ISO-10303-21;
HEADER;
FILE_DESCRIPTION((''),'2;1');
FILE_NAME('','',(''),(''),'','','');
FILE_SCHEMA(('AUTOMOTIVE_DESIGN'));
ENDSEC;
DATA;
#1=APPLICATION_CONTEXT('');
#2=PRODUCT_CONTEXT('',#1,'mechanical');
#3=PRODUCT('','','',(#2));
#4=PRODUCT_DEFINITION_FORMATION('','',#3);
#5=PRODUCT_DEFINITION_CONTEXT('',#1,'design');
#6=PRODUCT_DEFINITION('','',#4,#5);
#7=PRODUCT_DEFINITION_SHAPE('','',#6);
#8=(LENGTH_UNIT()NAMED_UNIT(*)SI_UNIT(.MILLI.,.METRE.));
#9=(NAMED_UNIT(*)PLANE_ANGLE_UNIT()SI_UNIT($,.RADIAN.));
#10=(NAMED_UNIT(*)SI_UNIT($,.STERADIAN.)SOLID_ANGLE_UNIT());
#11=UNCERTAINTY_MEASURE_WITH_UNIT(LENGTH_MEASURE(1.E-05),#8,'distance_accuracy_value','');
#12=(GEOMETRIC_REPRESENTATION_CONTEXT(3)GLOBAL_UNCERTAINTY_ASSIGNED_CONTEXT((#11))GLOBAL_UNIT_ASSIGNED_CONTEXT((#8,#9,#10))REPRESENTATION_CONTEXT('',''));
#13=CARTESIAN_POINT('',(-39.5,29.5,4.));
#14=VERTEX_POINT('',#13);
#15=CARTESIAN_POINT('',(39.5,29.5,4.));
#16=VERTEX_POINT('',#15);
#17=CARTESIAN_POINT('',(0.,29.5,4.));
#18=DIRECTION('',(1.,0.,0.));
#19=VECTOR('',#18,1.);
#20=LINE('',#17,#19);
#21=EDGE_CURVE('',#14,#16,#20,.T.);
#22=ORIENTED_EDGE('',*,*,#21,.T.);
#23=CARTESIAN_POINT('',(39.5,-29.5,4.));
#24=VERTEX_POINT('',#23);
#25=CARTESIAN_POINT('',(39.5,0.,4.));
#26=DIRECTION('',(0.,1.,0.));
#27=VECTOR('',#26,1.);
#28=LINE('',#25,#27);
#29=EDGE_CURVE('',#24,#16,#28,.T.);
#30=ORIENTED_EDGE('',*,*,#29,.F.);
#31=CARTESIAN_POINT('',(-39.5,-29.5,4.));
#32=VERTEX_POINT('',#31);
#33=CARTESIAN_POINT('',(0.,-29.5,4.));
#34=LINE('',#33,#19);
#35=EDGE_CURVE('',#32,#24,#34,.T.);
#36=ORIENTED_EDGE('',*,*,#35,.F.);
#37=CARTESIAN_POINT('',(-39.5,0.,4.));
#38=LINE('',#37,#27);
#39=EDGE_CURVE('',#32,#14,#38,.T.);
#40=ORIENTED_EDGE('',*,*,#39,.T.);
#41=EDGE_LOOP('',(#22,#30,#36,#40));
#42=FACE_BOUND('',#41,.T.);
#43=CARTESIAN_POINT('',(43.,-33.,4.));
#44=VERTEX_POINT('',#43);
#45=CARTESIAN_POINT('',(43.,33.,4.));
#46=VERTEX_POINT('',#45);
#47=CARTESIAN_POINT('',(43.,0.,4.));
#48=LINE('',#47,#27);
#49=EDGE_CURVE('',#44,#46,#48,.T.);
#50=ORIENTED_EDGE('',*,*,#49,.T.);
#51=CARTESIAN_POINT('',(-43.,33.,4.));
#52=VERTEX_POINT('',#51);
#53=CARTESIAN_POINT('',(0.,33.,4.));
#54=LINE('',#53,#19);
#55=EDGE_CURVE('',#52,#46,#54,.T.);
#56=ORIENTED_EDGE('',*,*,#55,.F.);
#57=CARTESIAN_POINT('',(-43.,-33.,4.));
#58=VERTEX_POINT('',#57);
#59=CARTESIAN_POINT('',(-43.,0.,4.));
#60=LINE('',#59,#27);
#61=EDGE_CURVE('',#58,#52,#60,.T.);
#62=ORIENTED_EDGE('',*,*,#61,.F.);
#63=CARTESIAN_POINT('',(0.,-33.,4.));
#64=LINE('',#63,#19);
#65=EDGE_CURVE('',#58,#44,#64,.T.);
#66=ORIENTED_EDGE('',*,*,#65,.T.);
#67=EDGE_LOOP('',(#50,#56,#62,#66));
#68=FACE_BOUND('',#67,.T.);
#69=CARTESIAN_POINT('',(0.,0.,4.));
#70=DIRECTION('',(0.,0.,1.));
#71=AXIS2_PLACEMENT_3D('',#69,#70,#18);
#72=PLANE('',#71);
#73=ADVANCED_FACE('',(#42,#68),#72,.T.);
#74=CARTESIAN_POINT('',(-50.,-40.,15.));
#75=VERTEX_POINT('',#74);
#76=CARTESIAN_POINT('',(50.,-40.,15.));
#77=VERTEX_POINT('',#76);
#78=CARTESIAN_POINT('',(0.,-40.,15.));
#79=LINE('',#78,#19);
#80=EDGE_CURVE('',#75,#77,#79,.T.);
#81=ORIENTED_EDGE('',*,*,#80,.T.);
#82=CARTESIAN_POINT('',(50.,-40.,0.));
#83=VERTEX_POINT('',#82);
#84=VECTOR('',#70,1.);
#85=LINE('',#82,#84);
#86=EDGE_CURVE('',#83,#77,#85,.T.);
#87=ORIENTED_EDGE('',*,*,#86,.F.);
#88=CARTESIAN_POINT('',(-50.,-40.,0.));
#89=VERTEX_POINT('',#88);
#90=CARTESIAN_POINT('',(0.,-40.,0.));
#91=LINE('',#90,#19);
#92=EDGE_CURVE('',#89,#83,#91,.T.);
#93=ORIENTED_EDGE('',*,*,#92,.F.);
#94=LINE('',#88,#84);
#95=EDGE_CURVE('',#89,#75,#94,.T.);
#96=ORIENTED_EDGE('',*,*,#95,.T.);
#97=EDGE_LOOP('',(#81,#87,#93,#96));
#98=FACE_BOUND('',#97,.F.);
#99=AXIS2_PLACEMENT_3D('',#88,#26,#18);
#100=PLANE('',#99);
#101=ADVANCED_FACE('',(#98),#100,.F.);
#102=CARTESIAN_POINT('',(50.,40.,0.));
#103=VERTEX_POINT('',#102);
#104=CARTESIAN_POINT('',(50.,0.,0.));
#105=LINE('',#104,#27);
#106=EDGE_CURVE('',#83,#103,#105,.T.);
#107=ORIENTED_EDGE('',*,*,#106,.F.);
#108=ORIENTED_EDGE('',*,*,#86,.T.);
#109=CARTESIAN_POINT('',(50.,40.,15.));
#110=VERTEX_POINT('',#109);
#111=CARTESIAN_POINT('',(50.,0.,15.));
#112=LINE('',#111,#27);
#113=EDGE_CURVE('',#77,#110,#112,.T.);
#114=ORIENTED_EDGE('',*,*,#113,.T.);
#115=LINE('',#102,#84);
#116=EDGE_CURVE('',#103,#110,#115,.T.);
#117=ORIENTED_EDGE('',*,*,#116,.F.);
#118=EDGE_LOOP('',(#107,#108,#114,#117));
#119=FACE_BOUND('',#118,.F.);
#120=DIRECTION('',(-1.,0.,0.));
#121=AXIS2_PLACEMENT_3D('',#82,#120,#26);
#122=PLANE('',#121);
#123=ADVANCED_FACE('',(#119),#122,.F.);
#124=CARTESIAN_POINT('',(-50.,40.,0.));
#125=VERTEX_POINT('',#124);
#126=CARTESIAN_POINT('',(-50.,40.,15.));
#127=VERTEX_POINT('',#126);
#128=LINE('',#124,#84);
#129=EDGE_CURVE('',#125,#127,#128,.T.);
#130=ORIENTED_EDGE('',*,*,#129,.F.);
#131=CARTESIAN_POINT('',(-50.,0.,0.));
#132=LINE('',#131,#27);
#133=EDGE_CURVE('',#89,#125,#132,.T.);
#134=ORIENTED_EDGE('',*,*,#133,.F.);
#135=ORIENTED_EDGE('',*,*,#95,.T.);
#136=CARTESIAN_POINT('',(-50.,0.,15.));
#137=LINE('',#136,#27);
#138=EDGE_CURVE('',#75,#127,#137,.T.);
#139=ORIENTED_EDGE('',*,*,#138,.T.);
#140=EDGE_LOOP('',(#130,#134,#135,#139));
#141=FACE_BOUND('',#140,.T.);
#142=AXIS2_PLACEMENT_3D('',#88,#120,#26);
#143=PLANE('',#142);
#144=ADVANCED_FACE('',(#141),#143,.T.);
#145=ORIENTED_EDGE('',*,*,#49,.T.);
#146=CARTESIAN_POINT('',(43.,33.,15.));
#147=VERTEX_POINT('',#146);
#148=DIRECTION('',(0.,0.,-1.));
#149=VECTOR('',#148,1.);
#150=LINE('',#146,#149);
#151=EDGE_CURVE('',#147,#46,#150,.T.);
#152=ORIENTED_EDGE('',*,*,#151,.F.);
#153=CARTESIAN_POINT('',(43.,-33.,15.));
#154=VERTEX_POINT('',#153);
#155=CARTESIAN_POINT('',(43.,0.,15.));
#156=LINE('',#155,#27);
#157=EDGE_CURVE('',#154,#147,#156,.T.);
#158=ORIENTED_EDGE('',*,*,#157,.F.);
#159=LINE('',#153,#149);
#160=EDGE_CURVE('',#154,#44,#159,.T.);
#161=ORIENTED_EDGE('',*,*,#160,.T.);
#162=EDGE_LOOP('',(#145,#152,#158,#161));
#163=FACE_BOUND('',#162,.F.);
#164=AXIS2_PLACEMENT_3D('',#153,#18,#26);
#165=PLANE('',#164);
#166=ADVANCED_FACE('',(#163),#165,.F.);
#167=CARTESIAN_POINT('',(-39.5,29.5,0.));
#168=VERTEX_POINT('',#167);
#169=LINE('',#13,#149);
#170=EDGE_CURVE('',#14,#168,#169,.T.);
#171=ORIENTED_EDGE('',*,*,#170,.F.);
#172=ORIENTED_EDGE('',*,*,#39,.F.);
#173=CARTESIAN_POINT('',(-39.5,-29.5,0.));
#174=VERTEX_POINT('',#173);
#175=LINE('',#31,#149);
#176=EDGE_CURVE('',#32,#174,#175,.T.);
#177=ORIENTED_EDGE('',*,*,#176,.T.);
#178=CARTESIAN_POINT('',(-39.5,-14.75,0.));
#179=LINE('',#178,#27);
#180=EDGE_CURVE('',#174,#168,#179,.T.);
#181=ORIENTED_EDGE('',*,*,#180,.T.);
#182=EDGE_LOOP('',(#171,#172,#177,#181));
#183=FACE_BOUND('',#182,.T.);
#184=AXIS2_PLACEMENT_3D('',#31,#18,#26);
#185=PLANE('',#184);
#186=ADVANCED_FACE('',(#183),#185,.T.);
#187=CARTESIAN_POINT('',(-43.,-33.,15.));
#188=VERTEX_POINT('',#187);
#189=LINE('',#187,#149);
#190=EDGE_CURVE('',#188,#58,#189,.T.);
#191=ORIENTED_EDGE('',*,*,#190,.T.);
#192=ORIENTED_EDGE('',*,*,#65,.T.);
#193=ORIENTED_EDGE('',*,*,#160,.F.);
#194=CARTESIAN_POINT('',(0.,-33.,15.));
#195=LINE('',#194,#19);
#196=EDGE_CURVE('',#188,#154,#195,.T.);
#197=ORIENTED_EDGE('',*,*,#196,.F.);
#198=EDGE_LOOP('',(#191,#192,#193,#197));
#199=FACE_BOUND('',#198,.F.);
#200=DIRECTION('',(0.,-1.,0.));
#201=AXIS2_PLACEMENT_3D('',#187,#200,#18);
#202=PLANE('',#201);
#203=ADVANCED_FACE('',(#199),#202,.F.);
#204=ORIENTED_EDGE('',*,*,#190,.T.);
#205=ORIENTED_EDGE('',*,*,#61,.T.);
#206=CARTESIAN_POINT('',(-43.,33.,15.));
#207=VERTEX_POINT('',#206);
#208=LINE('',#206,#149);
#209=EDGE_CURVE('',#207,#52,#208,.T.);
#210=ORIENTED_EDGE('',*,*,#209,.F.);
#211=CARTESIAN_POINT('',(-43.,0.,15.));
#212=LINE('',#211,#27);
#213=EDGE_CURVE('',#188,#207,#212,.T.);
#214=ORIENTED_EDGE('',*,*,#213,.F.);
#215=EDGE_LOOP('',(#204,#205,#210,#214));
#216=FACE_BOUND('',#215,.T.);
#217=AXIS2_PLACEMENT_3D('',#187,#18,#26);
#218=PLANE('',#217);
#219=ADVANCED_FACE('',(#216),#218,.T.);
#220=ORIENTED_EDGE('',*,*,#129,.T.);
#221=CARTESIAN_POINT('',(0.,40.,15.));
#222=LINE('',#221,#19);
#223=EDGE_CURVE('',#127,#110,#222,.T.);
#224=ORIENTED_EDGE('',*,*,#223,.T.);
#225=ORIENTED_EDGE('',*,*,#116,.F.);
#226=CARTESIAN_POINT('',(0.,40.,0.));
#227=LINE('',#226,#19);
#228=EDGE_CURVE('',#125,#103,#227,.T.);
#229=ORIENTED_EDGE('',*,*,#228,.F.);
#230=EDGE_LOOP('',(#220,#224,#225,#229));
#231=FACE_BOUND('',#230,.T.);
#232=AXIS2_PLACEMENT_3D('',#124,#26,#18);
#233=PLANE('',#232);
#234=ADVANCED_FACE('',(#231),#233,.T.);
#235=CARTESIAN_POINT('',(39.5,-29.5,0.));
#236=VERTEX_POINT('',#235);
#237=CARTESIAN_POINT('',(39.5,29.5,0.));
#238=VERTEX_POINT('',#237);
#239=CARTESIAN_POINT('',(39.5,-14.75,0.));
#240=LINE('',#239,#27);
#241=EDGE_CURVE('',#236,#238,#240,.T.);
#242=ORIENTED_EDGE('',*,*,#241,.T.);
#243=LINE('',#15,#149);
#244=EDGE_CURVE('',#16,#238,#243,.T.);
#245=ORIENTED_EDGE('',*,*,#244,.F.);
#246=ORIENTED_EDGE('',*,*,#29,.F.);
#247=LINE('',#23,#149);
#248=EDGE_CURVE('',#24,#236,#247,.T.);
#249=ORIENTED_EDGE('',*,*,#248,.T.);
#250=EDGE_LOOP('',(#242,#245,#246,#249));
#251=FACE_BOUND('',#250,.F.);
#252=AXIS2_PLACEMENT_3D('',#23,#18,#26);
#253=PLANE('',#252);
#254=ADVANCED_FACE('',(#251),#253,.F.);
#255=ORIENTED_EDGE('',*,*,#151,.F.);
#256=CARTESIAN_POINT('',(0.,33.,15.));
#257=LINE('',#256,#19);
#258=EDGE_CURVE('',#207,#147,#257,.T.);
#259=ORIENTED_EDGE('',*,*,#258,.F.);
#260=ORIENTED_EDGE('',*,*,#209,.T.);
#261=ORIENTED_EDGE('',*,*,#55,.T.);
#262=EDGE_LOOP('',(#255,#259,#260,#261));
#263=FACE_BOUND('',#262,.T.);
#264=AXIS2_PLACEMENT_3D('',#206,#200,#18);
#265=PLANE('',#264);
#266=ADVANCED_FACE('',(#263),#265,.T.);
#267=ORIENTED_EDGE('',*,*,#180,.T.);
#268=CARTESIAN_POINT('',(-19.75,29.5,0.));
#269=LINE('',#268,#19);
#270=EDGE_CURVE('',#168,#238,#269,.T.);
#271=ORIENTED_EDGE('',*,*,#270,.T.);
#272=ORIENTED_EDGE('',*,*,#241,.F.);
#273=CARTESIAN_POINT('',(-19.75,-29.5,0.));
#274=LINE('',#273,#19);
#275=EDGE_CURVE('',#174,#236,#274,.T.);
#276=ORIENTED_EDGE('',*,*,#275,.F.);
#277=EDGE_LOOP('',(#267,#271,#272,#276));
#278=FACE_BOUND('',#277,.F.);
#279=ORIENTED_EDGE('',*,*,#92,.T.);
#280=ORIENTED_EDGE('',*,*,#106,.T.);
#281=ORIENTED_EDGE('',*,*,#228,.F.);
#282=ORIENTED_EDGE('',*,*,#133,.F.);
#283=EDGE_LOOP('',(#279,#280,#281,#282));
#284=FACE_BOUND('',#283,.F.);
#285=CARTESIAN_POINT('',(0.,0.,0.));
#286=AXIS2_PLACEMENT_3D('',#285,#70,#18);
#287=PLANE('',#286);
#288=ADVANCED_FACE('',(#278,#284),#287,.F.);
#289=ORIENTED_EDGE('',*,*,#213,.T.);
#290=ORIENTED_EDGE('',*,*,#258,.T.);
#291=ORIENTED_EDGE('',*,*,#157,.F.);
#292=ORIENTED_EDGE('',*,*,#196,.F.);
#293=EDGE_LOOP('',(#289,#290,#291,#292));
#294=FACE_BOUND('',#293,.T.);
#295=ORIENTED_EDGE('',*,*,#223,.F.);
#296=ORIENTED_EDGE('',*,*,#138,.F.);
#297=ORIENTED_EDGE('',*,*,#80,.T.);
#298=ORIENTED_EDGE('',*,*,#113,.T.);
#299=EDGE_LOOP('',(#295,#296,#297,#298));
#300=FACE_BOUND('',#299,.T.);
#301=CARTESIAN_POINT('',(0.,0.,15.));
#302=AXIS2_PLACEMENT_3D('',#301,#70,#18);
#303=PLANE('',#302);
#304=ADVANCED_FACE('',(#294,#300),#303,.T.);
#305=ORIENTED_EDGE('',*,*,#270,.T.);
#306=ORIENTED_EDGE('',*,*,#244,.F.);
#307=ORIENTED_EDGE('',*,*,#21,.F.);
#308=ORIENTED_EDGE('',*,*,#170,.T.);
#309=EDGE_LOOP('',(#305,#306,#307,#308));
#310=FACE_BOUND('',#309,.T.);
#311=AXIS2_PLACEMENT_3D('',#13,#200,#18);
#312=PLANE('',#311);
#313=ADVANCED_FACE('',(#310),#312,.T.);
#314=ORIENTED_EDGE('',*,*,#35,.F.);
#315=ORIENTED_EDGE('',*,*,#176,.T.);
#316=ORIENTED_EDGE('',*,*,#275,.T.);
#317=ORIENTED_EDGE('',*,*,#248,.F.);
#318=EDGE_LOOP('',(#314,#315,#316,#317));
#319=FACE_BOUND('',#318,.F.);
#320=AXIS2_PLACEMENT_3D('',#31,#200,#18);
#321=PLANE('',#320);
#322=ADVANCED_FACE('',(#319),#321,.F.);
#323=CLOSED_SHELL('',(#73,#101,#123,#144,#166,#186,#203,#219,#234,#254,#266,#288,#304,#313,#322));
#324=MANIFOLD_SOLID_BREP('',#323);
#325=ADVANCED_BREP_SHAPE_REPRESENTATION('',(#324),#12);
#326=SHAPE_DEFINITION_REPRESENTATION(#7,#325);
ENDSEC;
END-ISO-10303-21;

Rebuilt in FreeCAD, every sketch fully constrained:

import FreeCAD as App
import Part
import Sketcher

doc = App.newDocument("Part")
body = doc.addObject("PartDesign::Body", "Body")

sketch1 = body.newObject("Sketcher::SketchObject", "Sketch")
sketch1.AttachmentSupport = (doc.getObject("XY_Plane"), [""])
sketch1.MapMode = "FlatFace"
sketch1.addGeometry([
    Part.LineSegment(App.Vector(-50, 40, 0), App.Vector(-50, -40, 0)),
    Part.LineSegment(App.Vector(-50, -40, 0), App.Vector(50, -40, 0)),
    Part.LineSegment(App.Vector(50, -40, 0), App.Vector(50, 40, 0)),
    Part.LineSegment(App.Vector(50, 40, 0), App.Vector(-50, 40, 0)),
], False)
sketch1.addConstraint([
    Sketcher.Constraint("Coincident", 0, 2, 1, 1),
    Sketcher.Constraint("Coincident", 1, 2, 2, 1),
    Sketcher.Constraint("Coincident", 2, 2, 3, 1),
    Sketcher.Constraint("Coincident", 3, 2, 0, 1),
    Sketcher.Constraint("Vertical", 0),
    Sketcher.Constraint("Horizontal", 1),
    Sketcher.Constraint("Vertical", 2),
    Sketcher.Constraint("Horizontal", 3),
    Sketcher.Constraint("Symmetric", 0, 2, 2, 2, -1, 1),
    Sketcher.Constraint("DistanceX", 1, 1, 1, 2, 100.0),
    Sketcher.Constraint("DistanceY", 0, 2, 0, 1, 80.0),
])
pad1 = body.newObject("PartDesign::Pad", "Pad")
pad1.Profile = sketch1
pad1.Length = 15

sketch2 = body.newObject("Sketcher::SketchObject", "Sketch001")
sketch2.AttachmentSupport = (doc.getObject("XY_Plane"), [""])
sketch2.MapMode = "FlatFace"
sketch2.AttachmentOffset = App.Placement(App.Vector(0, 0, 15), App.Rotation())
sketch2.addGeometry([
    Part.LineSegment(App.Vector(-43, 33, 0), App.Vector(-43, -33, 0)),
    Part.LineSegment(App.Vector(-43, -33, 0), App.Vector(43, -33, 0)),
    Part.LineSegment(App.Vector(43, -33, 0), App.Vector(43, 33, 0)),
    Part.LineSegment(App.Vector(43, 33, 0), App.Vector(-43, 33, 0)),
], False)
sketch2.addConstraint([
    Sketcher.Constraint("Coincident", 0, 2, 1, 1),
    Sketcher.Constraint("Coincident", 1, 2, 2, 1),
    Sketcher.Constraint("Coincident", 2, 2, 3, 1),
    Sketcher.Constraint("Coincident", 3, 2, 0, 1),
    Sketcher.Constraint("Vertical", 0),
    Sketcher.Constraint("Horizontal", 1),
    Sketcher.Constraint("Vertical", 2),
    Sketcher.Constraint("Horizontal", 3),
    Sketcher.Constraint("Symmetric", 0, 2, 2, 2, -1, 1),
    Sketcher.Constraint("DistanceX", 1, 1, 1, 2, 86.0),
    Sketcher.Constraint("DistanceY", 0, 2, 0, 1, 66.0),
])
pocket1 = body.newObject("PartDesign::Pocket", "Pocket")
pocket1.Profile = sketch2
pocket1.Length = 11

sketch3 = body.newObject("Sketcher::SketchObject", "Sketch002")
sketch3.AttachmentSupport = (doc.getObject("XY_Plane"), [""])
sketch3.MapMode = "FlatFace"
sketch3.AttachmentOffset = App.Placement(App.Vector(0, 0, 4), App.Rotation())
sketch3.addGeometry([
    Part.LineSegment(App.Vector(-40, 30, 0), App.Vector(-40, -30, 0)),
    Part.LineSegment(App.Vector(-40, -30, 0), App.Vector(40, -30, 0)),
    Part.LineSegment(App.Vector(40, -30, 0), App.Vector(40, 30, 0)),
    Part.LineSegment(App.Vector(40, 30, 0), App.Vector(-40, 30, 0)),
], False)
sketch3.addConstraint([
    Sketcher.Constraint("Coincident", 0, 2, 1, 1),
    Sketcher.Constraint("Coincident", 1, 2, 2, 1),
    Sketcher.Constraint("Coincident", 2, 2, 3, 1),
    Sketcher.Constraint("Coincident", 3, 2, 0, 1),
    Sketcher.Constraint("Vertical", 0),
    Sketcher.Constraint("Horizontal", 1),
    Sketcher.Constraint("Vertical", 2),
    Sketcher.Constraint("Horizontal", 3),
    Sketcher.Constraint("Symmetric", 0, 2, 2, 2, -1, 1),
    Sketcher.Constraint("DistanceX", 1, 1, 1, 2, 79.0),
    Sketcher.Constraint("DistanceY", 0, 2, 0, 1, 59.0),
])
pocket2 = body.newObject("PartDesign::Pocket", "Pocket001")
pocket2.Profile = sketch3
pocket2.Type = "ThroughAll"

doc.recompute()
